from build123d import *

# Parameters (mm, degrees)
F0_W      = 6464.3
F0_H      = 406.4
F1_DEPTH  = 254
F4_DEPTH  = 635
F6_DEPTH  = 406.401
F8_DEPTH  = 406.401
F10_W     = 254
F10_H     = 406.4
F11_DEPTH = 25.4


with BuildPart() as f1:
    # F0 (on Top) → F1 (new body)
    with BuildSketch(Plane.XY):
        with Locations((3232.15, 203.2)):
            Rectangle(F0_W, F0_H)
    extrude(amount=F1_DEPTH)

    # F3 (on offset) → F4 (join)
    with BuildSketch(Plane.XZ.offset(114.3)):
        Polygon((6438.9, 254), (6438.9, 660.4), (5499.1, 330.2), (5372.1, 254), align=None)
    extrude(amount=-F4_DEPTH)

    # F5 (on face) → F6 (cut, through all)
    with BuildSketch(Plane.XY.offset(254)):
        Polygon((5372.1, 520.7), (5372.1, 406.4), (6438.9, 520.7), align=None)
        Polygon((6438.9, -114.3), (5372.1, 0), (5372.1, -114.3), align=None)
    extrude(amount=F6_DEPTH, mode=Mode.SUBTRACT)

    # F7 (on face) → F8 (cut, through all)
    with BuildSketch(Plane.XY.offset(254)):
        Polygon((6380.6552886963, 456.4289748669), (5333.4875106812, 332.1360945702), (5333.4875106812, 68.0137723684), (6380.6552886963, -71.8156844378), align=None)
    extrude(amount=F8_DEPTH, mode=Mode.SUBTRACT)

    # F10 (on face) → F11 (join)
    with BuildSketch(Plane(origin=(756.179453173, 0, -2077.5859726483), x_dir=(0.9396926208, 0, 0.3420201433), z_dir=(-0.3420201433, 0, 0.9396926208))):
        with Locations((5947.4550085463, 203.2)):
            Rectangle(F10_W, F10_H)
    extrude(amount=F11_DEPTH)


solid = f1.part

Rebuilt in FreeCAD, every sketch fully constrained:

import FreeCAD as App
import Part
import Sketcher
from FreeCAD import Vector
Q = App.Units.Quantity


def add_polygon(sketch, points):
    """Adds a closed chain of lines whose ends are joined by coincident constraints."""
    first, n = sketch.GeometryCount, len(points)
    for a, b in zip(points, points[1:] + points[:1]):
        sketch.addGeometry(Part.LineSegment(App.Vector(*a, 0), App.Vector(*b, 0)), False)
    for i in range(n):
        sketch.addConstraint(Sketcher.Constraint("Coincident", first + i, 2, first + (i + 1) % n, 1))

doc = App.newDocument("Part")
params = doc.addObject("Spreadsheet::Sheet", "Params")
for row, (alias, value) in enumerate([
    ("sketch1_height", "16 in"),
    ("sketch1_width", "254.5 in"),
    ("pad1_length", "10 in"),
    ("sketch2_width", "42 in"),
    ("sketch2_height", "16 in"),
    ("pad2_length", "25 in"),
    ("sketch3_width", "42 in"),
    ("sketch3_height", "4.5 in"),
    ("sketch5_width", "10 in"),
    ("sketch5_height", "16 in"),
    ("pad3_length", "1 in"),
], start=1):
    params.set(f"A{row}", alias)
    params.set(f"B{row}", "=" + value)
    params.setAlias(f"B{row}", alias)

body = doc.addObject("PartDesign::Body", "Body")

# Sketch on XY plane
sketch1 = body.newObject("Sketcher::SketchObject", "Sketch")
sketch1.AttachmentSupport = (doc.getObject("XY_Plane"), [""])
sketch1.MapMode = "FlatFace"
add_polygon(sketch1, [(0, 406), (0, 0), (6464, 0), (6464, 406)])  # lines 0-3
sketch1.addConstraint(Sketcher.Constraint("Vertical", 0))
sketch1.addConstraint(Sketcher.Constraint("Horizontal", 1))
sketch1.addConstraint(Sketcher.Constraint("Vertical", 2))
sketch1.addConstraint(Sketcher.Constraint("Horizontal", 3))
sketch1.addConstraint(Sketcher.Constraint("Coincident", 0, 2, -1, 1))
sketch1.addConstraint(Sketcher.Constraint("DistanceY", 0, 2, 0, 1, Q("16 in")))
sketch1.addConstraint(Sketcher.Constraint("DistanceX", 1, 1, 1, 2, Q("254.5 in")))
sketch1.setExpression("Constraints[9]", "Params.sketch1_height")
sketch1.setExpression("Constraints[10]", "Params.sketch1_width")
pad1 = body.newObject("PartDesign::Pad", "Pad")
pad1.Profile = sketch1
pad1.setExpression("Length", "Params.pad1_length")

# Sketch on XZ plane
sketch2 = body.newObject("Sketcher::SketchObject", "Sketch001")
sketch2.AttachmentSupport = (doc.getObject("XZ_Plane"), [""])
sketch2.MapMode = "FlatFace"
sketch2.AttachmentOffset = App.Placement(Vector(0, 0, 4.5 * 25.4), App.Rotation())
add_polygon(sketch2, [(6439, 254), (6439, 660), (5499, 330), (5372, 254)])  # lines 0-3
sketch2.addConstraint(Sketcher.Constraint("Vertical", 0))
sketch2.addConstraint(Sketcher.Constraint("Horizontal", 3))
sketch2.addConstraint(Sketcher.Constraint("DistanceX", 3, 1, 3, 2, Q("42 in")))
sketch2.addConstraint(Sketcher.Constraint("DistanceY", 0, 1, 0, 2, Q("16 in")))
sketch2.addConstraint(Sketcher.Constraint("DistanceY", -1, 1, 0, 2, Q("26 in")))
sketch2.addConstraint(Sketcher.Constraint("DistanceY", -1, 1, 1, 2, Q("13 in")))
sketch2.addConstraint(Sketcher.Constraint("DistanceX", 1, 2, 0, 2, Q("37 in")))
sketch2.addConstraint(Sketcher.Constraint("DistanceX", -1, 1, 0, 2, Q("253.5 in")))
sketch2.setExpression("Constraints[6]", "Params.sketch2_width")
sketch2.setExpression("Constraints[7]", "Params.sketch2_height")
pad2 = body.newObject("PartDesign::Pad", "Pad001")
pad2.Profile = sketch2
pad2.setExpression("Length", "Params.pad2_length")
pad2.Reversed = True

# Sketch on XY plane
sketch3 = body.newObject("Sketcher::SketchObject", "Sketch002")
sketch3.AttachmentSupport = (doc.getObject("XY_Plane"), [""])
sketch3.MapMode = "FlatFace"
sketch3.AttachmentOffset = App.Placement(Vector(0, 0, 10 * 25.4), App.Rotation())
add_polygon(sketch3, [(5372, 521), (5372, 406), (6439, 521)])  # lines 0-2
add_polygon(sketch3, [(6439, -114), (5372, 0), (5372, -114)])  # lines 3-5
sketch3.addConstraint(Sketcher.Constraint("Vertical", 0))
sketch3.addConstraint(Sketcher.Constraint("Horizontal", 2))
sketch3.addConstraint(Sketcher.Constraint("Vertical", 4))
sketch3.addConstraint(Sketcher.Constraint("Horizontal", 5))
sketch3.addConstraint(Sketcher.Constraint("PointOnObject", 3, 2, -1))
sketch3.addConstraint(Sketcher.Constraint("Vertical", 2, 2, 3, 2))
sketch3.addConstraint(Sketcher.Constraint("Vertical", 1, 2, 5, 2))
sketch3.addConstraint(Sketcher.Constraint("Equal", 0, 4))
sketch3.addConstraint(Sketcher.Constraint("DistanceX", 2, 2, 2, 1, Q("42 in")))
sketch3.addConstraint(Sketcher.Constraint("DistanceY", 0, 2, 0, 1, Q("4.5 in")))
sketch3.addConstraint(Sketcher.Constraint("DistanceY", -1, 1, 0, 2, Q("16 in")))
sketch3.addConstraint(Sketcher.Constraint("DistanceX", -1, 1, 0, 2, Q("211.5 in")))
sketch3.setExpression("Constraints[14]", "Params.sketch3_width")
sketch3.setExpression("Constraints[15]", "Params.sketch3_height")
pocket1 = body.newObject("PartDesign::Pocket", "Pocket")
pocket1.Profile = sketch3
pocket1.Type = "ThroughAll"
pocket1.Reversed = True

# Sketch on XY plane
sketch4 = body.newObject("Sketcher::SketchObject", "Sketch003")
sketch4.AttachmentSupport = (doc.getObject("XY_Plane"), [""])
sketch4.MapMode = "FlatFace"
sketch4.AttachmentOffset = App.Placement(Vector(0, 0, 10 * 25.4), App.Rotation())
add_polygon(sketch4, [(6381, 456), (5333, 332), (5333, 68), (6381, -72)])  # lines 0-3
sketch4.addConstraint(Sketcher.Constraint("Vertical", 1))
sketch4.addConstraint(Sketcher.Constraint("Vertical", 3))
sketch4.addConstraint(Sketcher.Constraint("DistanceY", 3, 1, 3, 2, Q("528.244659 mm")))
sketch4.addConstraint(Sketcher.Constraint("Distance", 0, Q("1054.518409 mm")))
sketch4.addConstraint(Sketcher.Constraint("Distance", 2, Q("1056.462319 mm")))
sketch4.addConstraint(Sketcher.Constraint("DistanceY", 1, 2, 1, 1, Q("264.122322 mm")))
sketch4.addConstraint(Sketcher.Constraint("DistanceX", -1, 1, 0, 2, Q("5333.487511 mm")))
sketch4.addConstraint(Sketcher.Constraint("DistanceY", -1, 1, 0, 2, Q("332.136095 mm")))
pocket2 = body.newObject("PartDesign::Pocket", "Pocket001")
pocket2.Profile = sketch4
pocket2.Type = "ThroughAll"
pocket2.Reversed = True

# Sketch on an angled plane
sketch5 = body.newObject("Sketcher::SketchObject", "Sketch004")
sketch5.Placement = App.Placement(Vector(756.179453, 0, -2077.585973), App.Rotation(Vector(0.939692621, 0, 0.342020143), Vector(0, 1, 0), Vector(-0.342020143, 0, 0.939692621), "ZXY"))
add_polygon(sketch5, [(5820, 406), (5820, 0), (6074, 0), (6074, 406)])  # lines 0-3
sketch5.addConstraint(Sketcher.Constraint("Vertical", 0))
sketch5.addConstraint(Sketcher.Constraint("Horizontal", 1))
sketch5.addConstraint(Sketcher.Constraint("Vertical", 2))
sketch5.addConstraint(Sketcher.Constraint("Horizontal", 3))
sketch5.addConstraint(Sketcher.Constraint("PointOnObject", 0, 2, -1))
sketch5.addConstraint(Sketcher.Constraint("DistanceX", 1, 1, 1, 2, Q("10 in")))
sketch5.addConstraint(Sketcher.Constraint("DistanceY", 0, 2, 0, 1, Q("16 in")))
sketch5.addConstraint(Sketcher.Constraint("DistanceX", -1, 1, 0, 2, Q("5820.45501 mm")))
sketch5.setExpression("Constraints[9]", "Params.sketch5_width")
sketch5.setExpression("Constraints[10]", "Params.sketch5_height")
pad3 = body.newObject("PartDesign::Pad", "Pad002")
pad3.Profile = sketch5
pad3.setExpression("Length", "Params.pad3_length")

doc.recompute()
